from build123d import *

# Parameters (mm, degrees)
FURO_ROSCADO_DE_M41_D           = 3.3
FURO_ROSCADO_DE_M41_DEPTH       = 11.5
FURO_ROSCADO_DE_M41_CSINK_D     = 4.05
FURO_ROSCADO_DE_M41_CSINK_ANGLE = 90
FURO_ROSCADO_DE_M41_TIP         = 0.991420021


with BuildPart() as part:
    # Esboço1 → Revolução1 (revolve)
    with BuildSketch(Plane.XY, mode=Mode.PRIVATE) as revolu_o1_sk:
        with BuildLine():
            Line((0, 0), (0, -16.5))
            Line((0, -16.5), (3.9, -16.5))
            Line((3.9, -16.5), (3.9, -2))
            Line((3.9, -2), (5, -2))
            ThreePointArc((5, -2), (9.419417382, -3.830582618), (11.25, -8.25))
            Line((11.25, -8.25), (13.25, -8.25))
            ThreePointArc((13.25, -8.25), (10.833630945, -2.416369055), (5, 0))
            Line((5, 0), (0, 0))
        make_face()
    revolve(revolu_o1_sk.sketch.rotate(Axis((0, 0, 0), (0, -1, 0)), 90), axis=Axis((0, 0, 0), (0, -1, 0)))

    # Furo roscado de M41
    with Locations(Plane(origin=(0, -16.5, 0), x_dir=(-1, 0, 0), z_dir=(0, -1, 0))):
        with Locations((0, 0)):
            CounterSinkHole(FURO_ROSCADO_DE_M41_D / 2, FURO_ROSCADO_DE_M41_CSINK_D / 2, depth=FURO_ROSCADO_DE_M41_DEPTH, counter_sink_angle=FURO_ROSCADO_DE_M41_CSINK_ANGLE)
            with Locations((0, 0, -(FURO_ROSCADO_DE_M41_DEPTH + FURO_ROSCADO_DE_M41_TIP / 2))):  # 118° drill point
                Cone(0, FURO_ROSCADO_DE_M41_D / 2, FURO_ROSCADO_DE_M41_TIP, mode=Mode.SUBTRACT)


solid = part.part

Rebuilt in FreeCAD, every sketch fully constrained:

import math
import FreeCAD as App
import Part
import Sketcher

doc = App.newDocument("Part")
body = doc.addObject("PartDesign::Body", "Body")

sketch1 = body.newObject("Sketcher::SketchObject", "Sketch")
sketch1.AttachmentSupport = (doc.getObject("XY_Plane"), [""])
sketch1.MapMode = "FlatFace"
sketch1.addGeometry(Part.LineSegment(App.Vector(0, 0, 0), App.Vector(0, -16.5, 0)), False)
sketch1.addGeometry(Part.LineSegment(App.Vector(0, -16.5, 0), App.Vector(3.9, -16.5, 0)), False)
sketch1.addGeometry(Part.LineSegment(App.Vector(3.9, -16.5, 0), App.Vector(3.9, -2, 0)), False)
sketch1.addGeometry(Part.LineSegment(App.Vector(3.9, -2, 0), App.Vector(5, -2, 0)), False)
sketch1.addGeometry(Part.ArcOfCircle(Part.Circle(App.Vector(5, -8.3, 0), App.Vector(0, 0, 1), 6.3), math.radians(0), math.radians(90)), False)
sketch1.addGeometry(Part.LineSegment(App.Vector(11.2, -8.2, 0), App.Vector(13.2, -8.2, 0)), False)
sketch1.addGeometry(Part.ArcOfCircle(Part.Circle(App.Vector(5, -8.2, 0), App.Vector(0, 0, 1), 8.2), math.radians(0), math.radians(90)), False)
sketch1.addGeometry(Part.LineSegment(App.Vector(5, 0, 0), App.Vector(0, 0, 0)), False)
sketch1.addConstraint(Sketcher.Constraint("Coincident", 0, 2, 1, 1))
sketch1.addConstraint(Sketcher.Constraint("Coincident", 1, 2, 2, 1))
sketch1.addConstraint(Sketcher.Constraint("Coincident", 2, 2, 3, 1))
sketch1.addConstraint(Sketcher.Constraint("Tangent", 3, 2, 4, 2))
sketch1.addConstraint(Sketcher.Constraint("Coincident", 4, 1, 5, 1))
sketch1.addConstraint(Sketcher.Constraint("Coincident", 5, 2, 6, 1))
sketch1.addConstraint(Sketcher.Constraint("Tangent", 6, 2, 7, 1))
sketch1.addConstraint(Sketcher.Constraint("Coincident", 7, 2, 0, 1))
sketch1.addConstraint(Sketcher.Constraint("Vertical", 0))
sketch1.addConstraint(Sketcher.Constraint("Horizontal", 1))
sketch1.addConstraint(Sketcher.Constraint("Vertical", 2))
sketch1.addConstraint(Sketcher.Constraint("Horizontal", 3))
sketch1.addConstraint(Sketcher.Constraint("Horizontal", 5))
sketch1.addConstraint(Sketcher.Constraint("Horizontal", 7))
sketch1.addConstraint(Sketcher.Constraint("Coincident", 7, 2, -1, 1))
sketch1.addConstraint(Sketcher.Constraint("Coincident", 6, 3, 4, 3))
sketch1.addConstraint(Sketcher.Constraint("Horizontal", 6, 3, 4, 1))
sketch1.addConstraint(Sketcher.Constraint("DistanceX", 5, 1, 5, 2, 2.0))
sketch1.addConstraint(Sketcher.Constraint("DistanceX", 7, 2, 7, 1, 5.0))
sketch1.addConstraint(Sketcher.Constraint("Radius", 4, 6.25))
sketch1.addConstraint(Sketcher.Constraint("DistanceX", 1, 1, 1, 2, 3.9))
sketch1.addConstraint(Sketcher.Constraint("DistanceY", 0, 2, 0, 1, 16.5))
revolution = body.newObject("PartDesign::Revolution", "Revolution")
revolution.Profile = sketch1
revolution.ReferenceAxis = (sketch1, ["V_Axis"])
revolution.Angle = 360

sketch2 = body.newObject("Sketcher::SketchObject", "Sketch001")
sketch2.AttachmentSupport = (doc.getObject("XZ_Plane"), [""])
sketch2.MapMode = "FlatFace"
sketch2.AttachmentOffset = App.Placement(App.Vector(0, 0, 16.5), App.Rotation())
sketch2.addGeometry(Part.Circle(App.Vector(0, 0, 0), App.Vector(0, 0, 1), 1.6), False)
sketch2.addConstraint(Sketcher.Constraint("Coincident", 0, 3, -1, 1))
sketch2.addConstraint(Sketcher.Constraint("Diameter", 0, 3.3))
doc.recompute()
hole = body.newObject("PartDesign::Hole", "Hole")
hole.Profile = sketch2
hole.ThreadType = "None"
hole.Diameter = 3.3
hole.DepthType = "Dimension"
hole.Depth = 11.5
hole.DrillPoint = "Angled"
hole.DrillPointAngle = 118
hole.HoleCutType = "Countersink"
hole.HoleCutDiameter = 4.05
hole.HoleCutCountersinkAngle = 90

doc.recompute()
